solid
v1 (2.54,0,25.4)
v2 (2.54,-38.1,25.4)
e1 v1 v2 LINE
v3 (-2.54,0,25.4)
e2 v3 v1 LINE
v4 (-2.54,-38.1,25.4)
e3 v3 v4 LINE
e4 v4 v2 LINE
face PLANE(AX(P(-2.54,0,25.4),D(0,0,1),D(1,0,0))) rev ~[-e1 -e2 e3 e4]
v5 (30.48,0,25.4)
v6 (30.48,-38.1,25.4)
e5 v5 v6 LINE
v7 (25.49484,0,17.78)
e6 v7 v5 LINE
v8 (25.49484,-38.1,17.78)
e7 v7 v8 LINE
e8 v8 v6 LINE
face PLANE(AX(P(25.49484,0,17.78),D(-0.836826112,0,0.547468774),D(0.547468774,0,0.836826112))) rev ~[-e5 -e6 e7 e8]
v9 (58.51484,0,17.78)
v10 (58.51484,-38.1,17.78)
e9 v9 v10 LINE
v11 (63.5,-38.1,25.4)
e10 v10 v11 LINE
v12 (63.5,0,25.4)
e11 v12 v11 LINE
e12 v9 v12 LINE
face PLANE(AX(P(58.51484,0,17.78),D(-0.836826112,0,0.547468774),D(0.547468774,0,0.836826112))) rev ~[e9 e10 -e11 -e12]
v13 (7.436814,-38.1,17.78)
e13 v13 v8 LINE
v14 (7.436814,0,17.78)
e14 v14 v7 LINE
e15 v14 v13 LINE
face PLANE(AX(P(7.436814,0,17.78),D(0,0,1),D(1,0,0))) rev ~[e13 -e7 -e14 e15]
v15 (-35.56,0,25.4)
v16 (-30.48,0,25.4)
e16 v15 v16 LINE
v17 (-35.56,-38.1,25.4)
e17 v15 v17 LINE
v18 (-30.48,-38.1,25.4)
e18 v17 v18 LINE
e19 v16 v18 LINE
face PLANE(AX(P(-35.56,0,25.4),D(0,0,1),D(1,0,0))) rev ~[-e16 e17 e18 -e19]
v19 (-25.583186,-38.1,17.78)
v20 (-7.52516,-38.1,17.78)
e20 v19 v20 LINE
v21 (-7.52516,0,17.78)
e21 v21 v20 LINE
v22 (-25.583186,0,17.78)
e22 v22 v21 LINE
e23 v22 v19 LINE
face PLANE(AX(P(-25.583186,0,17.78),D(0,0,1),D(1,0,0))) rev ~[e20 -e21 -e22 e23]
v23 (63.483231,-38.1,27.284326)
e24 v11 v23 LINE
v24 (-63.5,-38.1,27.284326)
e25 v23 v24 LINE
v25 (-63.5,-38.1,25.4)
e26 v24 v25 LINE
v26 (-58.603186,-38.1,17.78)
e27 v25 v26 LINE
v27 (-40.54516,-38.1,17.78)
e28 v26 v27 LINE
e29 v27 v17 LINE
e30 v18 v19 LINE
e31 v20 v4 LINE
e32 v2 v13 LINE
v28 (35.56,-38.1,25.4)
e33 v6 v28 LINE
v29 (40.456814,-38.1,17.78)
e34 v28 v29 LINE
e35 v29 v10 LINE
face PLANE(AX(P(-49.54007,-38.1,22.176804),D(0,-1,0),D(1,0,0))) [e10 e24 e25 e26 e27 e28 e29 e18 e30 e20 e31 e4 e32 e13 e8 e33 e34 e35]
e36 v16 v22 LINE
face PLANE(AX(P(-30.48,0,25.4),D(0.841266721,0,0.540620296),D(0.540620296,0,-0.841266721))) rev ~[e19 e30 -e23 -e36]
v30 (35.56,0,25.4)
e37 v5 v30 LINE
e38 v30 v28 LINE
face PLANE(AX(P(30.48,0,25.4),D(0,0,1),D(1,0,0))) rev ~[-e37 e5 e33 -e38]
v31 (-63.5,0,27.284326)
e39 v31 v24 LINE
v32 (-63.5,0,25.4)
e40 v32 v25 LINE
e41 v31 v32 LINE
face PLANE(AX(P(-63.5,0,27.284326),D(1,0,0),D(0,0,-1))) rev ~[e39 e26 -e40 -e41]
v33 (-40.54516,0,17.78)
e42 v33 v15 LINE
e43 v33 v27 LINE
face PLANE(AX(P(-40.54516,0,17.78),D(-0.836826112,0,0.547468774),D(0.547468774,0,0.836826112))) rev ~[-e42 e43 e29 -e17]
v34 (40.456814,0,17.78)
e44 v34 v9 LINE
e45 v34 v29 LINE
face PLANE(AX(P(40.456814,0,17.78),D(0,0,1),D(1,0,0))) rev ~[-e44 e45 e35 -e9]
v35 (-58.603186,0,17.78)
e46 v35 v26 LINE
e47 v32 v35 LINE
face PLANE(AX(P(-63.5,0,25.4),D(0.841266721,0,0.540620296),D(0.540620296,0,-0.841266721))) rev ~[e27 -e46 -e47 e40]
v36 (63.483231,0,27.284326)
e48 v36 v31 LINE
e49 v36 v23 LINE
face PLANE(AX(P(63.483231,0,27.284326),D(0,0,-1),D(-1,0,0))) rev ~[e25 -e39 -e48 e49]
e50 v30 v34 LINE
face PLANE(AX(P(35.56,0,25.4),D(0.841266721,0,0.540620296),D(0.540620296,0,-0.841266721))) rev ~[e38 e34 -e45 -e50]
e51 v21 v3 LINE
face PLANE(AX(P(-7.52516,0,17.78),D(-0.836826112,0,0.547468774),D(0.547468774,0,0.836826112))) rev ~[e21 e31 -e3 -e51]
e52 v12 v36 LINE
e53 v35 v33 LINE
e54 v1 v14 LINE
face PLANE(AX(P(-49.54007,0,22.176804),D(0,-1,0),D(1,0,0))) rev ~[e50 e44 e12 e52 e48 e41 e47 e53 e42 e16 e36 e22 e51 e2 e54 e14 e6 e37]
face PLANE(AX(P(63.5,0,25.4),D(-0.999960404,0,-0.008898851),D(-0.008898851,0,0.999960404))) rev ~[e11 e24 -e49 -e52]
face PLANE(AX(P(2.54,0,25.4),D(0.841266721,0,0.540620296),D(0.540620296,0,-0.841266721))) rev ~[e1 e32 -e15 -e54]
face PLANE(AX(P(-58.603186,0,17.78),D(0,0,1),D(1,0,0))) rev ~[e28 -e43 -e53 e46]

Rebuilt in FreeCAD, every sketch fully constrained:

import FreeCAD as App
import Part
import Sketcher
Q = App.Units.Quantity


def add_polygon(sketch, points):
    """Adds a closed chain of lines whose ends are joined by coincident constraints."""
    first, n = sketch.GeometryCount, len(points)
    for a, b in zip(points, points[1:] + points[:1]):
        sketch.addGeometry(Part.LineSegment(App.Vector(*a, 0), App.Vector(*b, 0)), False)
    for i in range(n):
        sketch.addConstraint(Sketcher.Constraint("Coincident", first + i, 2, first + (i + 1) % n, 1))

doc = App.newDocument("Part")
body = doc.addObject("PartDesign::Body", "Body")

sketch1 = body.newObject("Sketcher::SketchObject", "Sketch")
sketch1.AttachmentSupport = (doc.getObject("XZ_Plane"), [""])
sketch1.MapMode = "FlatFace"
add_polygon(sketch1, [(-63.5, 25.4), (-58.6, 17.8), (-40.5, 17.8), (-35.6, 25.4), (-30.5, 25.4), (-25.6, 17.8), (-7.5, 17.8), (-2.5, 25.4), (2.5, 25.4), (7.4, 17.8), (25.5, 17.8), (30.5, 25.4), (35.6, 25.4), (40.5, 17.8), (58.5, 17.8), (63.5, 25.4), (63.5, 27.3), (-63.5, 27.3)])
sketch1.addConstraint([
    Sketcher.Constraint("Horizontal", 1),
    Sketcher.Constraint("Horizontal", 3),
    Sketcher.Constraint("Horizontal", 5),
    Sketcher.Constraint("Horizontal", 7),
    Sketcher.Constraint("Horizontal", 9),
    Sketcher.Constraint("Horizontal", 11),
    Sketcher.Constraint("Horizontal", 13),
    Sketcher.Constraint("Horizontal", 16),
    Sketcher.Constraint("Vertical", 17),
    Sketcher.Constraint("Symmetric", 3, 2, 10, 2, -2),
    Sketcher.Constraint("Symmetric", 14, 2, 17, 2, -2),
    Sketcher.Constraint("Parallel", 0, 4),
    Sketcher.Constraint("Parallel", 2, 6),
    Sketcher.Constraint("Parallel", 4, 8),
    Sketcher.Constraint("Parallel", 6, 10),
    Sketcher.Constraint("Parallel", 8, 12),
    Sketcher.Constraint("Parallel", 10, 14),
    Sketcher.Constraint("Horizontal", 1, 2, 4, 2),
    Sketcher.Constraint("Horizontal", 3, 2, 6, 2),
    Sketcher.Constraint("Horizontal", 5, 2, 8, 2),
    Sketcher.Constraint("Horizontal", 9, 2, 12, 2),
    Sketcher.Constraint("Horizontal", 11, 2, 14, 2),
    Sketcher.Constraint("Equal", 1, 5),
    Sketcher.Constraint("Equal", 3, 7),
    Sketcher.Constraint("Equal", 5, 9),
    Sketcher.Constraint("Equal", 7, 11),
    Sketcher.Constraint("DistanceX", 3, 1, 3, 2, Q("0.2 in")),
    Sketcher.Constraint("DistanceY", -1, 1, 2, 2, Q("1 in")),
    Sketcher.Constraint("DistanceY", -1, 1, 0, 2, Q("0.7 in")),
    Sketcher.Constraint("DistanceX", 2, 2, -1, 1, Q("1.4 in")),
    Sketcher.Constraint("Distance", 15, Q("1.884401 mm")),
    Sketcher.Constraint("DistanceX", 16, 2, 16, 1, Q("126.983231 mm")),
    Sketcher.Constraint("Distance", 0, Q("9.057769 mm")),
    Sketcher.Constraint("DistanceX", 1, 1, 1, 2, Q("18.058026 mm")),
])
pad1 = body.newObject("PartDesign::Pad", "Pad")
pad1.Profile = sketch1
pad1.Length = Q("1.5 in")

doc.recompute()
